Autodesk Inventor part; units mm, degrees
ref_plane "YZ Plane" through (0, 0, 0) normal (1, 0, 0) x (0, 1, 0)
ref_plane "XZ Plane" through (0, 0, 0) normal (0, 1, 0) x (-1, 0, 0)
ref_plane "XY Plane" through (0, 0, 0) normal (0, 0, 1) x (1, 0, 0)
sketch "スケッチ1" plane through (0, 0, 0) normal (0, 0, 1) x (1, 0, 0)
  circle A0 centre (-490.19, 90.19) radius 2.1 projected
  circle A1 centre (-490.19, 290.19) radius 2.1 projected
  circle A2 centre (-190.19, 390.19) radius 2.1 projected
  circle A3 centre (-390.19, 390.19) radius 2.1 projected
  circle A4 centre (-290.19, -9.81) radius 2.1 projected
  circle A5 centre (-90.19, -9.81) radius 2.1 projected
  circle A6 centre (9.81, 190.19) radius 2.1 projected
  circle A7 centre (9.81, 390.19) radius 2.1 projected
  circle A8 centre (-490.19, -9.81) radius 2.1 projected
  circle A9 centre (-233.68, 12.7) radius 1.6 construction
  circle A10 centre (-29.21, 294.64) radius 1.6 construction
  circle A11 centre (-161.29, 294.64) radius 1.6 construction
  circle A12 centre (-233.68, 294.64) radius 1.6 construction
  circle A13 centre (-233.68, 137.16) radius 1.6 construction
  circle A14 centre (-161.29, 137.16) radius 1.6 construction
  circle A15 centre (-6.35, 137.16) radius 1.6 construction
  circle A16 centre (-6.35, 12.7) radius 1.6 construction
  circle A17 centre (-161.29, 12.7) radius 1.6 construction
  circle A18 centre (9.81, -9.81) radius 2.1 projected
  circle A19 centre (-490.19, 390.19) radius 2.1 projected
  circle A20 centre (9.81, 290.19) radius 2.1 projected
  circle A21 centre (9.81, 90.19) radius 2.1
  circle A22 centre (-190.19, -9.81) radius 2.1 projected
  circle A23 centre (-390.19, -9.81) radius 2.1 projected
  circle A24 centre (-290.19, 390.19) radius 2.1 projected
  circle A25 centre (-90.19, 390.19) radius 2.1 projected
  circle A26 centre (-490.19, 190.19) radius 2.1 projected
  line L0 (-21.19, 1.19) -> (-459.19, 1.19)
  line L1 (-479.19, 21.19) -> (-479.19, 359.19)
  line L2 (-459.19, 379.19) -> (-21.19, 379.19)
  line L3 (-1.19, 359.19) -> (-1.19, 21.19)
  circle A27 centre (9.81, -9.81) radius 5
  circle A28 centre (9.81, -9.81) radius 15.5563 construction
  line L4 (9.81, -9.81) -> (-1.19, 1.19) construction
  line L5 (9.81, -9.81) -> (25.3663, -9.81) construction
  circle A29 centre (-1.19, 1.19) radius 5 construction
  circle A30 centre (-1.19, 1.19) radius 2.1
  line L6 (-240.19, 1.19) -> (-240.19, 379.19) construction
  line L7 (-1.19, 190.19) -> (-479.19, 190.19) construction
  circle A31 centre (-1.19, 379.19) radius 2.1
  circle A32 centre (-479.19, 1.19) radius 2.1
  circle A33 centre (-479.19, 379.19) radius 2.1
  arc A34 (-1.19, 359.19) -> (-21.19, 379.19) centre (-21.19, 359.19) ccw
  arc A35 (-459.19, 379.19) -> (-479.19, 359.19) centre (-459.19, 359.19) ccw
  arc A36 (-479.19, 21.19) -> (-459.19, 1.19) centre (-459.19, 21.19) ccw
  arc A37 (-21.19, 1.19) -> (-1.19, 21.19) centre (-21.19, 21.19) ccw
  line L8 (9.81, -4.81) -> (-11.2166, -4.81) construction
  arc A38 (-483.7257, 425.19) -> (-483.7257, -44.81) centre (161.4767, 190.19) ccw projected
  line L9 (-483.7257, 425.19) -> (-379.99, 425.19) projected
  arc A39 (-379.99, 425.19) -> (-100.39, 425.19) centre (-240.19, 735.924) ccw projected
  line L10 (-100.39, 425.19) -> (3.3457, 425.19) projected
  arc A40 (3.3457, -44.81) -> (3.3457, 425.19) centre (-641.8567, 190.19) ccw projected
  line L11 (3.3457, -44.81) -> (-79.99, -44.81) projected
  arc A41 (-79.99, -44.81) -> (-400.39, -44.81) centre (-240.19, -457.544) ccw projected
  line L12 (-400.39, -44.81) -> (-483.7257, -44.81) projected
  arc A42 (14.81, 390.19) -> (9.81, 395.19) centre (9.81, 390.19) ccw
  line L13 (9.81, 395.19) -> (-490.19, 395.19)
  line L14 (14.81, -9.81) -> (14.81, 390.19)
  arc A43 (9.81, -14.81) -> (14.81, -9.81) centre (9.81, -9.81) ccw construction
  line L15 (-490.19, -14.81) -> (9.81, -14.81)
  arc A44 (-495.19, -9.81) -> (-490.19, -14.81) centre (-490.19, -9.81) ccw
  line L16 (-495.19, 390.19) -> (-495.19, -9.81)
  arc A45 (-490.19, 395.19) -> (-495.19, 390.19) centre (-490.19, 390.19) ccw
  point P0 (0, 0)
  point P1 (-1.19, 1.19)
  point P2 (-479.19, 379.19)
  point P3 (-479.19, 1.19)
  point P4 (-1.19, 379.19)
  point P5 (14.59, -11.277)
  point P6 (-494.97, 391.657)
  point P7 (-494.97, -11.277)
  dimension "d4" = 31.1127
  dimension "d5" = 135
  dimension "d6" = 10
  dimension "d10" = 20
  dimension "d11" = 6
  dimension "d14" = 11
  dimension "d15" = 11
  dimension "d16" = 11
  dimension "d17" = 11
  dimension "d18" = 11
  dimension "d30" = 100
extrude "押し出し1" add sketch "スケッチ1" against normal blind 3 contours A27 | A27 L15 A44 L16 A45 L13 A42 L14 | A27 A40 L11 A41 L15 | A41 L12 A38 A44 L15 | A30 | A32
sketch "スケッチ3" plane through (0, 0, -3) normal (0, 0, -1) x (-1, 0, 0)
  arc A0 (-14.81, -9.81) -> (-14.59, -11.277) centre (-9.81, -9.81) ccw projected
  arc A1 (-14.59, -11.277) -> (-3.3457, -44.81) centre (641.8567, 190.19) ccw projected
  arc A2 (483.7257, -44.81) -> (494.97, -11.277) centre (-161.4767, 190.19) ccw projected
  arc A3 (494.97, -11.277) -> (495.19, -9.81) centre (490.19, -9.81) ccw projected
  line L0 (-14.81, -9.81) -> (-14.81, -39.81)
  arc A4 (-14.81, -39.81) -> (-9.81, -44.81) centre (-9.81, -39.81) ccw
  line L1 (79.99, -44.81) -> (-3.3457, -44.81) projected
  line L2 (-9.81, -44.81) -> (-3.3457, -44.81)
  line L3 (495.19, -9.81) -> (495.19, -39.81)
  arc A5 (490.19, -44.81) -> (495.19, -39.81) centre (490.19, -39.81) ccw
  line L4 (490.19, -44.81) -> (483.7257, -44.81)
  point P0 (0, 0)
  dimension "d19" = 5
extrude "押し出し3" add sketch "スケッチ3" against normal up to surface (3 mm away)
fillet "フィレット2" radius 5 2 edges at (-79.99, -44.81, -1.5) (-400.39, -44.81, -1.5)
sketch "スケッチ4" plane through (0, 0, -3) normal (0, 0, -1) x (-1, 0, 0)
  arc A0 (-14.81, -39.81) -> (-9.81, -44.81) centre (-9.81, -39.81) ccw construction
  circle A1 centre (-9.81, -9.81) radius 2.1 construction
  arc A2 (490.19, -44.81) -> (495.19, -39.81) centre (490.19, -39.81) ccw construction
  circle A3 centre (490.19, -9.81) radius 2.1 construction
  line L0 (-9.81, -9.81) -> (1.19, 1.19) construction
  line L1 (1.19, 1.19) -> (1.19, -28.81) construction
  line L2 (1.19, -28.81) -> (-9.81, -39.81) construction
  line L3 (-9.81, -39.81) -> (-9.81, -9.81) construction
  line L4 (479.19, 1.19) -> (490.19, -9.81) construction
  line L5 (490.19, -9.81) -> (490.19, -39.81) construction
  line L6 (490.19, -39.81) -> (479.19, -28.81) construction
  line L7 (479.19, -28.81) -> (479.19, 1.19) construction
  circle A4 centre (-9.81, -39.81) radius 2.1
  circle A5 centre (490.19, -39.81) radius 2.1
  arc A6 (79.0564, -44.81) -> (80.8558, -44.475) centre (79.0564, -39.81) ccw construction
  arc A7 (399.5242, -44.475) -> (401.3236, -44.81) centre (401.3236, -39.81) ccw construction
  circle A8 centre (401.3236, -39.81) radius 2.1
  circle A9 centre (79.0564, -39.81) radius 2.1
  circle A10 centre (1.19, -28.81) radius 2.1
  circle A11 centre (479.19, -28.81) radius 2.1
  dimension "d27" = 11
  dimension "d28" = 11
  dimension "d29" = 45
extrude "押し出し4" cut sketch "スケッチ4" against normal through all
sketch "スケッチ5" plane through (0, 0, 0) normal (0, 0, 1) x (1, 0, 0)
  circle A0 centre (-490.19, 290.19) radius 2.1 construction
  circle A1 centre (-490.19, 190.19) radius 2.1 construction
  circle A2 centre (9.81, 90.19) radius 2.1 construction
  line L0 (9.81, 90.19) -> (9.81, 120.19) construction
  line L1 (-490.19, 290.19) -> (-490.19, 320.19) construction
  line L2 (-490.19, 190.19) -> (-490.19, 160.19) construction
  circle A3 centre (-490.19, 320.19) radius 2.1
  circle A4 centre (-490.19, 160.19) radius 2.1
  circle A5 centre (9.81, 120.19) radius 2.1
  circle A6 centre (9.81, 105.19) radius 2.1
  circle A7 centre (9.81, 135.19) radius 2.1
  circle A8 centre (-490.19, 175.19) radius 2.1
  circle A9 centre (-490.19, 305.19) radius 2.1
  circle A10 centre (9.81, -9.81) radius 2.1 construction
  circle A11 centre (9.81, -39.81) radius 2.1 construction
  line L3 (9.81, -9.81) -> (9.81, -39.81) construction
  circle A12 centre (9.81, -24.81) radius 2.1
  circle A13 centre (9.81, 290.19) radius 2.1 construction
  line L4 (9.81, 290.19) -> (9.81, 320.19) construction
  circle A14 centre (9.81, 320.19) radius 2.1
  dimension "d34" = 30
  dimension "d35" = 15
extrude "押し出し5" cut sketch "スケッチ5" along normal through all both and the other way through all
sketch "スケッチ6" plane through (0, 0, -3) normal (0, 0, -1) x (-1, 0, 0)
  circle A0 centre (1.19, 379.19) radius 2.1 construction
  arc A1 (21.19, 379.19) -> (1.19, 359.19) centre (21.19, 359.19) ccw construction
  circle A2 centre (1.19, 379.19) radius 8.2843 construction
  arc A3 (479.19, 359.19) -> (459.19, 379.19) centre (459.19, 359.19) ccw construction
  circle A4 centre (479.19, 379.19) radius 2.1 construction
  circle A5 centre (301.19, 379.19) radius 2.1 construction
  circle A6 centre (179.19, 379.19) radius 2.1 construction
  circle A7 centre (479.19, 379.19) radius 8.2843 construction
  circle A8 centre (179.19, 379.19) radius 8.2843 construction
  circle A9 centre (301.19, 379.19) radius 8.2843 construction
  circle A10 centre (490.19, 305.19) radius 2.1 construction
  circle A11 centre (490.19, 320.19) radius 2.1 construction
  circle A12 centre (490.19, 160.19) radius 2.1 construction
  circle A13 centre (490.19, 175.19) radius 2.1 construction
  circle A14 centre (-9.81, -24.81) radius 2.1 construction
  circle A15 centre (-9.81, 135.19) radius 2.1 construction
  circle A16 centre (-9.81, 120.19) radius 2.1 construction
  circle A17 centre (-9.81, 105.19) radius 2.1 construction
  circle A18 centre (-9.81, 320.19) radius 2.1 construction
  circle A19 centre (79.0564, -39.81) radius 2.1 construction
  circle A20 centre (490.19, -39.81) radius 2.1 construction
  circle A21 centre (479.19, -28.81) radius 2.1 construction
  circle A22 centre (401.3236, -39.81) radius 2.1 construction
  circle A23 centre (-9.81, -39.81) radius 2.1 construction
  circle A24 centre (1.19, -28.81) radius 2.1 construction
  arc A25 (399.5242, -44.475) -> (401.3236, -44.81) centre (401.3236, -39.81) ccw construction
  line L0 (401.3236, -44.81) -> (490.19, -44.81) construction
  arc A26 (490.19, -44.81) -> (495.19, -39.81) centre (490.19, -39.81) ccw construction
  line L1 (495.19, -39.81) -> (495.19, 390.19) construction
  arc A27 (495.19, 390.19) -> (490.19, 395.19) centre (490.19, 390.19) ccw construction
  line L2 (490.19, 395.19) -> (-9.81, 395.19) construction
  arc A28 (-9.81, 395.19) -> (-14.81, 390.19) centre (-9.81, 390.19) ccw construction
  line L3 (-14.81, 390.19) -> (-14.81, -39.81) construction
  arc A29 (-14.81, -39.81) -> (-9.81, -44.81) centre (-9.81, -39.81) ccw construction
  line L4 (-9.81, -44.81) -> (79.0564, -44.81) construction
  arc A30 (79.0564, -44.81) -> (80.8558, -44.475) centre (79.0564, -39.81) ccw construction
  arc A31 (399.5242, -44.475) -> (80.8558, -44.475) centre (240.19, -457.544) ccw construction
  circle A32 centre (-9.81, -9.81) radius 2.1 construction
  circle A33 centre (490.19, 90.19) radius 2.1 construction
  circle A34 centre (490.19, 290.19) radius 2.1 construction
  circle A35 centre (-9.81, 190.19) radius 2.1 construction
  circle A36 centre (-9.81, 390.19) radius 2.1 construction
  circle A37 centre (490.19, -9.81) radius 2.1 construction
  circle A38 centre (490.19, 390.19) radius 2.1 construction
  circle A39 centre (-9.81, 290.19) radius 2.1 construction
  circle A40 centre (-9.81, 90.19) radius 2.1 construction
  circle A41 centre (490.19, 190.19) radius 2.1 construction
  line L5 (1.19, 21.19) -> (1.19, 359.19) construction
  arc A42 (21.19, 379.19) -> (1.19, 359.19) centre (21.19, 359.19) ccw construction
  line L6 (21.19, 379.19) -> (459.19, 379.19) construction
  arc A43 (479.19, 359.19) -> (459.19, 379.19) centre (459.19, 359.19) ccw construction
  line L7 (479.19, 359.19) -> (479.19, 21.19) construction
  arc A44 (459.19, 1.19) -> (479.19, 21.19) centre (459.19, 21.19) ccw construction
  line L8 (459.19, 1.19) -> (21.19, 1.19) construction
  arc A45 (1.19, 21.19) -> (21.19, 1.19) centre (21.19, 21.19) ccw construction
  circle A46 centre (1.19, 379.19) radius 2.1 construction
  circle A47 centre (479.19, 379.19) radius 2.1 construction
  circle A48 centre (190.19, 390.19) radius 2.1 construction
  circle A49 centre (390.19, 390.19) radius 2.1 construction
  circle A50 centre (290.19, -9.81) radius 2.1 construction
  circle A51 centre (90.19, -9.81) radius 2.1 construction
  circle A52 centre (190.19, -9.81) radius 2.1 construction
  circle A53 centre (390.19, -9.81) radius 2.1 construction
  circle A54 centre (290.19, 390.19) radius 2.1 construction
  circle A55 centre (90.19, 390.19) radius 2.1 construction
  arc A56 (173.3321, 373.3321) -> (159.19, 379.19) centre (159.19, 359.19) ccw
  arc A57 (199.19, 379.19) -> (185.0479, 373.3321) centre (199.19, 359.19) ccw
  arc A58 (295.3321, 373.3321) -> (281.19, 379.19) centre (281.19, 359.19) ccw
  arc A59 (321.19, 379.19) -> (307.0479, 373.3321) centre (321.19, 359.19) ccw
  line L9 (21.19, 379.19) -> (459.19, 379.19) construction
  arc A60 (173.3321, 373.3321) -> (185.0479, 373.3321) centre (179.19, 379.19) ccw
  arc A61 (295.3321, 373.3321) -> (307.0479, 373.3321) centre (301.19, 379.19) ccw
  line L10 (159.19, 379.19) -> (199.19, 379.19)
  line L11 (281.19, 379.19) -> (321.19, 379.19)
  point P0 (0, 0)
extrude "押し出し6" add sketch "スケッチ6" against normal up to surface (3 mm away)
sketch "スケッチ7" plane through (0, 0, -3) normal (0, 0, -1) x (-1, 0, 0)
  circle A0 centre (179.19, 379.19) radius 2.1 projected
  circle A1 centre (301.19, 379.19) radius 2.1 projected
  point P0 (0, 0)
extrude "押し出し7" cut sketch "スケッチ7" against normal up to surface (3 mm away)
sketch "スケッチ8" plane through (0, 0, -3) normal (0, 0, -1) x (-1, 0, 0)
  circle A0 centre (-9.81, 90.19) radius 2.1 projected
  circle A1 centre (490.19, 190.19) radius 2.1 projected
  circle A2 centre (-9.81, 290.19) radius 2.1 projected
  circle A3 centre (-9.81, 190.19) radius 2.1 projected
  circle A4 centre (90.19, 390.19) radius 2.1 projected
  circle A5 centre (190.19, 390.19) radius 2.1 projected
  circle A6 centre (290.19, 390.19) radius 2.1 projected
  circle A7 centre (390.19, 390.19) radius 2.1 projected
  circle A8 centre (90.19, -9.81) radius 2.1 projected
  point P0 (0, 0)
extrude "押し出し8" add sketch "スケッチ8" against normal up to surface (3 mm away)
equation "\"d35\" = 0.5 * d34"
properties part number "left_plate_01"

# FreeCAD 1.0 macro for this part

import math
import FreeCAD as App
import Part
import Sketcher
from FreeCAD import Vector


def edges_at(feature, points):
    """Names of the edges that pass closest to the given points."""
    edges = feature.Shape.Edges
    near = lambda p: min(range(len(edges)), key=lambda i: edges[i].distToShape(Part.Vertex(*p))[0])
    return sorted({f"Edge{near(p) + 1}" for p in points})

doc = App.newDocument("Part")
body = doc.addObject("PartDesign::Body", "Body")

sketch1 = body.newObject("Sketcher::SketchObject", "Sketch")
sketch1.AttachmentSupport = (doc.getObject("XY_Plane"), [""])
sketch1.MapMode = "FlatFace"
sketch1.addGeometry([
    Part.ArcOfCircle(Part.Circle(Vector(9.8, -9.8, 0), Vector(0, 0, 1), 5), math.radians(-17.06), math.radians(0)),
    Part.LineSegment(Vector(14.8, -9.8, 0), Vector(14.8, 390.2, 0)),
    Part.ArcOfCircle(Part.Circle(Vector(9.8, 390.2, 0), Vector(0, 0, 1), 5), math.radians(0), math.radians(90)),
    Part.LineSegment(Vector(9.8, 395.2, 0), Vector(-490.2, 395.2, 0)),
    Part.ArcOfCircle(Part.Circle(Vector(-490.2, 390.2, 0), Vector(0, 0, 1), 5), math.radians(90), math.radians(180)),
    Part.LineSegment(Vector(-495.2, 390.2, 0), Vector(-495.2, -9.8, 0)),
    Part.ArcOfCircle(Part.Circle(Vector(-490.2, -9.8, 0), Vector(0, 0, 1), 5), math.radians(180), math.radians(197.06)),
    Part.ArcOfCircle(Part.Circle(Vector(161.5, 190.2, 0), Vector(0, 0, 1), 686.7), math.radians(-162.94), math.radians(-159.99)),
    Part.LineSegment(Vector(-483.7, -44.8, 0), Vector(-400.4, -44.8, 0)),
    Part.ArcOfCircle(Part.Circle(Vector(-240.2, -457.5, 0), Vector(0, 0, 1), 442.7), math.radians(69), math.radians(111)),
    Part.LineSegment(Vector(-80, -44.8, 0), Vector(3.3, -44.8, 0)),
    Part.ArcOfCircle(Part.Circle(Vector(-641.9, 190.2, 0), Vector(0, 0, 1), 686.7), math.radians(-20.01), math.radians(-17.06)),
    Part.Circle(Vector(9.8, -9.8, 0), Vector(0, 0, 1), 2.1),
    Part.Circle(Vector(9.8, 390.2, 0), Vector(0, 0, 1), 2.1),
    Part.Circle(Vector(-1.2, 379.2, 0), Vector(0, 0, 1), 2.1),
    Part.Circle(Vector(-490.2, -9.8, 0), Vector(0, 0, 1), 2.1),
    Part.Circle(Vector(-390.2, -9.8, 0), Vector(0, 0, 1), 2.1),
    Part.Circle(Vector(-290.2, -9.8, 0), Vector(0, 0, 1), 2.1),
    Part.Circle(Vector(-490.2, 90.2, 0), Vector(0, 0, 1), 2.1),
    Part.Circle(Vector(-490.2, 190.2, 0), Vector(0, 0, 1), 2.1),
    Part.Circle(Vector(-190.2, -9.8, 0), Vector(0, 0, 1), 2.1),
    Part.Circle(Vector(-90.2, -9.8, 0), Vector(0, 0, 1), 2.1),
    Part.ArcOfCircle(Part.Circle(Vector(-21.2, 21.2, 0), Vector(0, 0, 1), 20), math.radians(-90), math.radians(0)),
    Part.LineSegment(Vector(-21.2, 1.2, 0), Vector(-459.2, 1.2, 0)),
    Part.ArcOfCircle(Part.Circle(Vector(-459.2, 21.2, 0), Vector(0, 0, 1), 20), math.radians(180), math.radians(270)),
    Part.LineSegment(Vector(-479.2, 21.2, 0), Vector(-479.2, 359.2, 0)),
    Part.ArcOfCircle(Part.Circle(Vector(-459.2, 359.2, 0), Vector(0, 0, 1), 20), math.radians(90), math.radians(180)),
    Part.LineSegment(Vector(-459.2, 379.2, 0), Vector(-21.2, 379.2, 0)),
    Part.ArcOfCircle(Part.Circle(Vector(-21.2, 359.2, 0), Vector(0, 0, 1), 20), math.radians(0), math.radians(90)),
    Part.LineSegment(Vector(-1.2, 359.2, 0), Vector(-1.2, 21.2, 0)),
    Part.Circle(Vector(9.8, 90.2, 0), Vector(0, 0, 1), 2.1),
    Part.Circle(Vector(9.8, 190.2, 0), Vector(0, 0, 1), 2.1),
    Part.Circle(Vector(-490.2, 290.2, 0), Vector(0, 0, 1), 2.1),
    Part.Circle(Vector(-490.2, 390.2, 0), Vector(0, 0, 1), 2.1),
    Part.Circle(Vector(-479.2, 379.2, 0), Vector(0, 0, 1), 2.1),
    Part.Circle(Vector(-390.2, 390.2, 0), Vector(0, 0, 1), 2.1),
    Part.Circle(Vector(-290.2, 390.2, 0), Vector(0, 0, 1), 2.1),
    Part.Circle(Vector(9.8, 290.2, 0), Vector(0, 0, 1), 2.1),
    Part.Circle(Vector(-190.2, 390.2, 0), Vector(0, 0, 1), 2.1),
    Part.Circle(Vector(-90.2, 390.2, 0), Vector(0, 0, 1), 2.1),
], False)
sketch1.addConstraint([
    Sketcher.Constraint("Tangent", 0, 2, 1, 1),
    Sketcher.Constraint("Tangent", 1, 2, 2, 1),
    Sketcher.Constraint("Tangent", 2, 2, 3, 1),
    Sketcher.Constraint("Tangent", 3, 2, 4, 1),
    Sketcher.Constraint("Tangent", 4, 2, 5, 1),
    Sketcher.Constraint("Tangent", 5, 2, 6, 1),
    Sketcher.Constraint("Tangent", 6, 2, 7, 1),
    Sketcher.Constraint("Coincident", 7, 2, 8, 1),
    Sketcher.Constraint("Coincident", 8, 2, 9, 2),
    Sketcher.Constraint("Coincident", 9, 1, 10, 1),
    Sketcher.Constraint("Coincident", 10, 2, 11, 1),
    Sketcher.Constraint("Tangent", 11, 2, 0, 1),
    Sketcher.Constraint("Tangent", 22, 1, 23, 1),
    Sketcher.Constraint("Tangent", 23, 2, 24, 2),
    Sketcher.Constraint("Tangent", 24, 1, 25, 1),
    Sketcher.Constraint("Tangent", 25, 2, 26, 2),
    Sketcher.Constraint("Tangent", 26, 1, 27, 1),
    Sketcher.Constraint("Tangent", 27, 2, 28, 2),
    Sketcher.Constraint("Tangent", 28, 1, 29, 1),
    Sketcher.Constraint("Tangent", 29, 2, 22, 2),
    Sketcher.Constraint("Vertical", 1),
    Sketcher.Constraint("Horizontal", 3),
    Sketcher.Constraint("Vertical", 5),
    Sketcher.Constraint("Horizontal", 8),
    Sketcher.Constraint("Horizontal", 10),
    Sketcher.Constraint("Horizontal", 23),
    Sketcher.Constraint("Vertical", 25),
    Sketcher.Constraint("Horizontal", 27),
    Sketcher.Constraint("Vertical", 29),
    Sketcher.Constraint("Coincident", 12, 3, 0, 3),
    Sketcher.Constraint("Coincident", 13, 3, 2, 3),
    Sketcher.Constraint("Coincident", 15, 3, 6, 3),
    Sketcher.Constraint("Coincident", 33, 3, 4, 3),
    Sketcher.Constraint("Equal", 0, 2),
    Sketcher.Constraint("Equal", 2, 4),
    Sketcher.Constraint("Equal", 4, 6),
    Sketcher.Constraint("Equal", 7, 11),
    Sketcher.Constraint("Equal", 12, 13),
    Sketcher.Constraint("Equal", 13, 14),
    Sketcher.Constraint("Equal", 14, 15),
    Sketcher.Constraint("Equal", 15, 16),
    Sketcher.Constraint("Equal", 16, 17),
    Sketcher.Constraint("Equal", 17, 18),
    Sketcher.Constraint("Equal", 18, 19),
    Sketcher.Constraint("Equal", 19, 20),
    Sketcher.Constraint("Equal", 20, 21),
    Sketcher.Constraint("Equal", 22, 24),
    Sketcher.Constraint("Equal", 24, 26),
    Sketcher.Constraint("Equal", 26, 28),
    Sketcher.Constraint("Equal", 21, 30),
    Sketcher.Constraint("Equal", 30, 31),
    Sketcher.Constraint("Equal", 31, 32),
    Sketcher.Constraint("Equal", 32, 33),
    Sketcher.Constraint("Equal", 33, 34),
    Sketcher.Constraint("Equal", 34, 35),
    Sketcher.Constraint("Equal", 35, 36),
    Sketcher.Constraint("Equal", 36, 37),
    Sketcher.Constraint("Equal", 37, 38),
    Sketcher.Constraint("Equal", 38, 39),
    Sketcher.Constraint("Horizontal", 0, 3, 6, 3),
    Sketcher.Constraint("Horizontal", 7, 3, 11, 3),
    Sketcher.Constraint("Horizontal", 15, 3, 16, 3),
    Sketcher.Constraint("Horizontal", 16, 3, 17, 3),
    Sketcher.Constraint("Horizontal", 11, 3, 19, 3),
    Sketcher.Constraint("Horizontal", 17, 3, 20, 3),
    Sketcher.Constraint("Horizontal", 20, 3, 21, 3),
    Sketcher.Constraint("Horizontal", 18, 3, 30, 3),
    Sketcher.Constraint("Horizontal", 19, 3, 31, 3),
    Sketcher.Constraint("Horizontal", 14, 3, 34, 3),
    Sketcher.Constraint("Horizontal", 33, 3, 35, 3),
    Sketcher.Constraint("Horizontal", 35, 3, 36, 3),
    Sketcher.Constraint("Horizontal", 32, 3, 37, 3),
    Sketcher.Constraint("Horizontal", 36, 3, 38, 3),
    Sketcher.Constraint("Horizontal", 38, 3, 39, 3),
    Sketcher.Constraint("Horizontal", 8, 2, 9, 1),
    Sketcher.Constraint("Horizontal", 34, 3, 26, 1),
    Sketcher.Constraint("Vertical", 15, 3, 18, 3),
    Sketcher.Constraint("Vertical", 18, 3, 19, 3),
    Sketcher.Constraint("Vertical", 13, 3, 30, 3),
    Sketcher.Constraint("Vertical", 30, 3, 31, 3),
    Sketcher.Constraint("Vertical", 19, 3, 32, 3),
    Sketcher.Constraint("Vertical", 16, 3, 35, 3),
    Sketcher.Constraint("Vertical", 17, 3, 36, 3),
    Sketcher.Constraint("Vertical", 31, 3, 37, 3),
    Sketcher.Constraint("Vertical", 20, 3, 38, 3),
    Sketcher.Constraint("Vertical", 21, 3, 39, 3),
    Sketcher.Constraint("Vertical", 34, 3, 24, 1),
    Sketcher.Constraint("Vertical", 14, 3, 28, 1),
    Sketcher.Constraint("Equal", 8, 10),
    Sketcher.Constraint("Radius", 0, 5.0),
    Sketcher.Constraint("Radius", 22, 20.0),
    Sketcher.Constraint("DistanceX", 14, 3, 2, 3, 11.0),
    Sketcher.Constraint("DistanceY", 14, 3, 2, 3, 11.0),
    Sketcher.Constraint("DistanceX", 6, 3, 16, 3, 100.0),
    Sketcher.Constraint("DistanceX", 16, 3, 17, 3, 100.0),
    Sketcher.Constraint("DistanceY", 6, 3, 18, 3, 100.0),
    Sketcher.Constraint("DistanceY", 18, 3, 11, 3, 100.0),
    Sketcher.Constraint("DistanceX", 17, 3, 20, 3, 100.0),
    Sketcher.Constraint("DistanceX", 21, 3, 0, 3, 100.0),
    Sketcher.Constraint("DistanceX", 20, 3, 21, 3, 100.0),
    Sketcher.Constraint("DistanceY", 32, 3, 4, 3, 100.0),
    Sketcher.Constraint("DistanceY", 19, 3, 32, 3, 100.0),
    Sketcher.Constraint("DistanceX", 4, 3, 34, 3, 11.0),
    Sketcher.Constraint("DistanceY", 0, 3, 22, 1, 11.0),
    Sketcher.Constraint("Diameter", 12, 4.2),
    Sketcher.Constraint("Radius", 9, 442.734),
    Sketcher.Constraint("DistanceY", 8, 2, 16, 3, 35.0),
    Sketcher.Constraint("Radius", 7, 686.6667),
    Sketcher.Constraint("DistanceX", 8, 2, 16, 3, 10.2),
    Sketcher.Constraint("DistanceX", -1, 1, 0, 3, 9.81),
    Sketcher.Constraint("DistanceY", 0, 3, -1, 1, 9.81),
])
pad1 = body.newObject("PartDesign::Pad", "Pad")
pad1.Profile = sketch1
pad1.Length = 3
pad1.Reversed = True

sketch2 = body.newObject("Sketcher::SketchObject", "Sketch001")
sketch2.AttachmentSupport = (doc.getObject("XY_Plane"), [""])
sketch2.MapMode = "FlatFace"
sketch2.AttachmentOffset = App.Placement(Vector(0, 0, -3), App.Rotation())
sketch2.addGeometry([
    Part.ArcOfCircle(Part.Circle(Vector(9.807789, -9.809835, 0), Vector(0, 0, 1), 5.002211), math.radians(-17.055823), math.radians(-0.001889)),
    Part.LineSegment(Vector(14.81, -9.81, 0), Vector(14.81, -39.81, 0)),
    Part.ArcOfCircle(Part.Circle(Vector(9.81, -39.81, 0), Vector(0, 0, 1), 5), math.radians(-90), math.radians(0)),
    Part.LineSegment(Vector(9.81, -44.81, 0), Vector(3.3457, -44.81, 0)),
    Part.ArcOfCircle(Part.Circle(Vector(-641.7678, 190.161458, 0), Vector(0, 0, 1), 686.573385), math.radians(-20.01328), math.radians(-17.061429)),
    Part.ArcOfCircle(Part.Circle(Vector(161.56486, 190.22083, 0), Vector(0, 0, 1), 686.760073), math.radians(-162.938169), math.radians(-159.987121)),
    Part.LineSegment(Vector(-483.7257, -44.81, 0), Vector(-490.19, -44.81, 0)),
    Part.ArcOfCircle(Part.Circle(Vector(-490.19, -39.81, 0), Vector(0, 0, 1), 5), math.radians(180), math.radians(270)),
    Part.LineSegment(Vector(-495.19, -39.81, 0), Vector(-495.19, -9.81, 0)),
    Part.ArcOfCircle(Part.Circle(Vector(-490.19216, -9.810491, 0), Vector(0, 0, 1), 4.99784), math.radians(179.994376), math.radians(197.063336)),
], False)
sketch2.addConstraint([
    Sketcher.Constraint("Coincident", 0, 2, 1, 1),
    Sketcher.Constraint("Coincident", 1, 2, 2, 2),
    Sketcher.Constraint("Coincident", 2, 1, 3, 1),
    Sketcher.Constraint("Coincident", 3, 2, 4, 1),
    Sketcher.Constraint("Coincident", 4, 2, 0, 1),
    Sketcher.Constraint("Coincident", 5, 2, 6, 1),
    Sketcher.Constraint("Coincident", 6, 2, 7, 2),
    Sketcher.Constraint("Coincident", 7, 1, 8, 1),
    Sketcher.Constraint("Coincident", 8, 2, 9, 1),
    Sketcher.Constraint("Coincident", 9, 2, 5, 1),
    Sketcher.Constraint("Vertical", 1),
    Sketcher.Constraint("Horizontal", 3),
    Sketcher.Constraint("Horizontal", 6),
    Sketcher.Constraint("Vertical", 8),
    Sketcher.Constraint("Radius", 2, 5.0),
    Sketcher.Constraint("Radius", 7, 5.0),
    Sketcher.Constraint("DistanceX", 2, 1, 1, 2, 5.0),
    Sketcher.Constraint("DistanceY", 2, 1, 1, 2, 5.0),
    Sketcher.Constraint("DistanceX", 7, 1, 6, 2, 5.0),
    Sketcher.Constraint("DistanceY", 6, 2, 7, 1, 5.0),
    Sketcher.Constraint("DistanceY", 1, 2, 1, 1, 30.0),
    Sketcher.Constraint("DistanceY", 8, 1, 8, 2, 30.0),
    Sketcher.Constraint("Radius", 5, 686.76),
    Sketcher.Constraint("DistanceX", 7, 3, 2, 3, 500.0),
    Sketcher.Constraint("DistanceX", 9, 3, 0, 3, 500.0),
    Sketcher.Constraint("DistanceY", 7, 3, 0, 2, 30.0),
    Sketcher.Constraint("Radius", 0, 5.0022),
    Sketcher.Constraint("Radius", 4, 686.5734),
    Sketcher.Constraint("DistanceX", -1, 1, 2, 3, 9.81),
    Sketcher.Constraint("DistanceY", 2, 3, -1, 1, 39.81),
    Sketcher.Constraint("DistanceX", -1, 1, 4, 2, 14.59),
    Sketcher.Constraint("DistanceX", 9, 2, -1, 1, 494.97),
    Sketcher.Constraint("DistanceX", 3, 2, 3, 1, 6.4643),
    Sketcher.Constraint("DistanceX", 6, 2, 6, 1, 6.4643),
    Sketcher.Constraint("DistanceY", 9, 2, -1, 1, 11.277),
    Sketcher.Constraint("DistanceY", 9, 3, 4, 3, 199.972),
])
pad2 = body.newObject("PartDesign::Pad", "Pad001")
pad2.Profile = sketch2
pad2.Length = 3
doc.recompute()

fillet = body.newObject("PartDesign::Fillet", "Fillet")
fillet.Base = (pad2, edges_at(pad2, [(-79.99, -44.81, -1.5), (-400.39, -44.81, -1.5)]))
fillet.Radius = 5

sketch3 = body.newObject("Sketcher::SketchObject", "Sketch002")
sketch3.AttachmentSupport = (doc.getObject("XY_Plane"), [""])
sketch3.MapMode = "FlatFace"
sketch3.AttachmentOffset = App.Placement(Vector(0, 0, -3), App.Rotation())
sketch3.addGeometry([
    Part.Circle(Vector(9.8, -39.8, 0), Vector(0, 0, 1), 2.1),
    Part.Circle(Vector(-490.2, -39.8, 0), Vector(0, 0, 1), 2.1),
    Part.Circle(Vector(-401.3, -39.8, 0), Vector(0, 0, 1), 2.1),
    Part.Circle(Vector(-79.1, -39.8, 0), Vector(0, 0, 1), 2.1),
    Part.Circle(Vector(-1.2, -28.8, 0), Vector(0, 0, 1), 2.1),
    Part.Circle(Vector(-479.2, -28.8, 0), Vector(0, 0, 1), 2.1),
], False)
sketch3.addConstraint([
    Sketcher.Constraint("Equal", 0, 1),
    Sketcher.Constraint("Equal", 1, 2),
    Sketcher.Constraint("Equal", 2, 3),
    Sketcher.Constraint("Equal", 3, 4),
    Sketcher.Constraint("Equal", 4, 5),
    Sketcher.Constraint("Horizontal", 0, 3, 1, 3),
    Sketcher.Constraint("Horizontal", 1, 3, 2, 3),
    Sketcher.Constraint("Horizontal", 2, 3, 3, 3),
    Sketcher.Constraint("Horizontal", 4, 3, 5, 3),
    Sketcher.Constraint("DistanceX", 4, 3, 0, 3, 11.0),
    Sketcher.Constraint("DistanceY", 0, 3, 4, 3, 11.0),
    Sketcher.Constraint("DistanceX", 1, 3, 5, 3, 11.0),
    Sketcher.Constraint("Diameter", 0, 4.2),
    Sketcher.Constraint("DistanceX", 1, 3, 0, 3, 500.0),
    Sketcher.Constraint("DistanceX", -1, 1, 0, 3, 9.81),
    Sketcher.Constraint("DistanceY", 0, 3, -1, 1, 39.81),
    Sketcher.Constraint("DistanceX", 2, 3, -1, 1, 401.3236),
    Sketcher.Constraint("DistanceX", 3, 3, -1, 1, 79.0564),
])
pocket1 = body.newObject("PartDesign::Pocket", "Pocket")
pocket1.Profile = sketch3
pocket1.Type = "ThroughAll"
pocket1.Reversed = True

sketch4 = body.newObject("Sketcher::SketchObject", "Sketch003")
sketch4.AttachmentSupport = (doc.getObject("XY_Plane"), [""])
sketch4.MapMode = "FlatFace"
sketch4.addGeometry([
    Part.Circle(Vector(-490.2, 320.2, 0), Vector(0, 0, 1), 2.1),
    Part.Circle(Vector(-490.2, 160.2, 0), Vector(0, 0, 1), 2.1),
    Part.Circle(Vector(9.8, 120.2, 0), Vector(0, 0, 1), 2.1),
    Part.Circle(Vector(9.8, 105.2, 0), Vector(0, 0, 1), 2.1),
    Part.Circle(Vector(9.8, 135.2, 0), Vector(0, 0, 1), 2.1),
    Part.Circle(Vector(-490.2, 175.2, 0), Vector(0, 0, 1), 2.1),
    Part.Circle(Vector(-490.2, 305.2, 0), Vector(0, 0, 1), 2.1),
    Part.Circle(Vector(9.8, -24.8, 0), Vector(0, 0, 1), 2.1),
    Part.Circle(Vector(9.8, 320.2, 0), Vector(0, 0, 1), 2.1),
], False)
sketch4.addConstraint([
    Sketcher.Constraint("Equal", 0, 1),
    Sketcher.Constraint("Equal", 1, 2),
    Sketcher.Constraint("Equal", 2, 3),
    Sketcher.Constraint("Equal", 3, 4),
    Sketcher.Constraint("Equal", 4, 5),
    Sketcher.Constraint("Equal", 5, 6),
    Sketcher.Constraint("Equal", 6, 7),
    Sketcher.Constraint("Equal", 7, 8),
    Sketcher.Constraint("Horizontal", 0, 3, 8, 3),
    Sketcher.Constraint("Vertical", 0, 3, 1, 3),
    Sketcher.Constraint("Vertical", 2, 3, 3, 3),
    Sketcher.Constraint("Vertical", 3, 3, 4, 3),
    Sketcher.Constraint("Vertical", 1, 3, 5, 3),
    Sketcher.Constraint("Vertical", 5, 3, 6, 3),
    Sketcher.Constraint("Vertical", 4, 3, 7, 3),
    Sketcher.Constraint("Vertical", 7, 3, 8, 3),
    Sketcher.Constraint("DistanceY", 3, 3, 2, 3, 15.0),
    Sketcher.Constraint("DistanceY", 2, 3, 4, 3, 15.0),
    Sketcher.Constraint("DistanceY", 1, 3, 5, 3, 15.0),
    Sketcher.Constraint("DistanceY", 6, 3, 0, 3, 15.0),
    Sketcher.Constraint("Diameter", 0, 4.2),
    Sketcher.Constraint("DistanceY", 1, 3, 0, 3, 160.0),
    Sketcher.Constraint("DistanceX", 1, 3, 2, 3, 500.0),
    Sketcher.Constraint("DistanceY", 2, 3, 1, 3, 40.0),
    Sketcher.Constraint("DistanceY", 7, 3, 3, 3, 130.0),
    Sketcher.Constraint("DistanceX", 0, 3, -1, 1, 490.19),
    Sketcher.Constraint("DistanceY", -1, 1, 0, 3, 320.19),
])
pocket2 = body.newObject("PartDesign::Pocket", "Pocket001")
pocket2.Profile = sketch4
pocket2.Type = "ThroughAll"
pocket2.Midplane = True

sketch5 = body.newObject("Sketcher::SketchObject", "Sketch004")
sketch5.AttachmentSupport = (doc.getObject("XY_Plane"), [""])
sketch5.MapMode = "FlatFace"
sketch5.AttachmentOffset = App.Placement(Vector(0, 0, -3), App.Rotation())
sketch5.addGeometry([
    Part.ArcOfCircle(Part.Circle(Vector(-159, 359, 0), Vector(0, 0, 1), 20), math.radians(90), math.radians(135)),
    Part.ArcOfCircle(Part.Circle(Vector(-179, 379, 0), Vector(0, 0, 1), 8), math.radians(-135), math.radians(-45)),
    Part.ArcOfCircle(Part.Circle(Vector(-199, 359, 0), Vector(0, 0, 1), 20), math.radians(45), math.radians(90)),
    Part.LineSegment(Vector(-199, 379, 0), Vector(-159, 379, 0)),
    Part.ArcOfCircle(Part.Circle(Vector(-281, 359, 0), Vector(0, 0, 1), 20), math.radians(90), math.radians(135)),
    Part.ArcOfCircle(Part.Circle(Vector(-301, 379, 0), Vector(0, 0, 1), 8), math.radians(-135), math.radians(-45)),
    Part.ArcOfCircle(Part.Circle(Vector(-321, 359, 0), Vector(0, 0, 1), 20), math.radians(45), math.radians(90)),
    Part.LineSegment(Vector(-321, 379, 0), Vector(-281, 379, 0)),
], False)
sketch5.addConstraint([
    Sketcher.Constraint("Tangent", 0, 2, 1, 2),
    Sketcher.Constraint("Tangent", 1, 1, 2, 1),
    Sketcher.Constraint("Tangent", 2, 2, 3, 1),
    Sketcher.Constraint("Tangent", 3, 2, 0, 1),
    Sketcher.Constraint("Tangent", 4, 2, 5, 2),
    Sketcher.Constraint("Tangent", 5, 1, 6, 1),
    Sketcher.Constraint("Tangent", 6, 2, 7, 1),
    Sketcher.Constraint("Tangent", 7, 2, 4, 1),
    Sketcher.Constraint("Horizontal", 3),
    Sketcher.Constraint("Horizontal", 7),
    Sketcher.Constraint("Equal", 0, 2),
    Sketcher.Constraint("Equal", 2, 4),
    Sketcher.Constraint("Equal", 1, 5),
    Sketcher.Constraint("Equal", 4, 6),
    Sketcher.Constraint("Horizontal", 2, 3, 4, 3),
    Sketcher.Constraint("Horizontal", 1, 3, 5, 3),
    Sketcher.Constraint("Horizontal", 5, 3, 2, 2),
    Sketcher.Constraint("Radius", 0, 20.0),
    Sketcher.Constraint("DistanceX", 3, 1, 3, 2, 40.0),
    Sketcher.Constraint("DistanceX", 4, 3, 2, 3, 82.0),
    Sketcher.Constraint("DistanceX", 0, 3, -1, 1, 159.19),
    Sketcher.Constraint("DistanceY", -1, 1, 0, 3, 359.19),
])
pad3 = body.newObject("PartDesign::Pad", "Pad002")
pad3.Profile = sketch5
pad3.Length = 3

sketch6 = body.newObject("Sketcher::SketchObject", "Sketch005")
sketch6.AttachmentSupport = (doc.getObject("XY_Plane"), [""])
sketch6.MapMode = "FlatFace"
sketch6.AttachmentOffset = App.Placement(Vector(0, 0, -3), App.Rotation())
sketch6.addGeometry([
    Part.Circle(Vector(-179.2, 379.2, 0), Vector(0, 0, 1), 2.1),
    Part.Circle(Vector(-301.2, 379.2, 0), Vector(0, 0, 1), 2.1),
], False)
sketch6.addConstraint([
    Sketcher.Constraint("Equal", 0, 1),
    Sketcher.Constraint("Horizontal", 0, 3, 1, 3),
    Sketcher.Constraint("Diameter", 0, 4.2),
    Sketcher.Constraint("DistanceX", 1, 3, 0, 3, 122.0),
    Sketcher.Constraint("DistanceX", 0, 3, -1, 1, 179.19),
    Sketcher.Constraint("DistanceY", -1, 1, 0, 3, 379.19),
])
pocket3 = body.newObject("PartDesign::Pocket", "Pocket002")
pocket3.Profile = sketch6
pocket3.Length = 3
pocket3.Reversed = True

sketch7 = body.newObject("Sketcher::SketchObject", "Sketch006")
sketch7.AttachmentSupport = (doc.getObject("XY_Plane"), [""])
sketch7.MapMode = "FlatFace"
sketch7.AttachmentOffset = App.Placement(Vector(0, 0, -3), App.Rotation())
sketch7.addGeometry([
    Part.Circle(Vector(9.8, 90.2, 0), Vector(0, 0, 1), 2.1),
    Part.Circle(Vector(-490.2, 190.2, 0), Vector(0, 0, 1), 2.1),
    Part.Circle(Vector(9.8, 290.2, 0), Vector(0, 0, 1), 2.1),
    Part.Circle(Vector(9.8, 190.2, 0), Vector(0, 0, 1), 2.1),
    Part.Circle(Vector(-90.2, 390.2, 0), Vector(0, 0, 1), 2.1),
    Part.Circle(Vector(-190.2, 390.2, 0), Vector(0, 0, 1), 2.1),
    Part.Circle(Vector(-290.2, 390.2, 0), Vector(0, 0, 1), 2.1),
    Part.Circle(Vector(-390.2, 390.2, 0), Vector(0, 0, 1), 2.1),
    Part.Circle(Vector(-90.2, -9.8, 0), Vector(0, 0, 1), 2.1),
], False)
sketch7.addConstraint([
    Sketcher.Constraint("Equal", 0, 1),
    Sketcher.Constraint("Equal", 1, 2),
    Sketcher.Constraint("Equal", 2, 3),
    Sketcher.Constraint("Equal", 3, 4),
    Sketcher.Constraint("Equal", 4, 5),
    Sketcher.Constraint("Equal", 5, 6),
    Sketcher.Constraint("Equal", 6, 7),
    Sketcher.Constraint("Equal", 7, 8),
    Sketcher.Constraint("Horizontal", 1, 3, 3, 3),
    Sketcher.Constraint("Horizontal", 4, 3, 5, 3),
    Sketcher.Constraint("Horizontal", 5, 3, 6, 3),
    Sketcher.Constraint("Horizontal", 6, 3, 7, 3),
    Sketcher.Constraint("Vertical", 0, 3, 2, 3),
    Sketcher.Constraint("Vertical", 2, 3, 3, 3),
    Sketcher.Constraint("Vertical", 4, 3, 8, 3),
    Sketcher.Constraint("Diameter", 0, 4.2),
    Sketcher.Constraint("DistanceX", 1, 3, 0, 3, 500.0),
    Sketcher.Constraint("DistanceY", 0, 3, 1, 3, 100.0),
    Sketcher.Constraint("DistanceY", 0, 3, 2, 3, 200.0),
    Sketcher.Constraint("DistanceX", 4, 3, 2, 3, 100.0),
    Sketcher.Constraint("DistanceY", 2, 3, 4, 3, 100.0),
    Sketcher.Constraint("DistanceX", 5, 3, 4, 3, 100.0),
    Sketcher.Constraint("DistanceX", 6, 3, 5, 3, 100.0),
    Sketcher.Constraint("DistanceX", 7, 3, 6, 3, 100.0),
    Sketcher.Constraint("DistanceY", 8, 3, 0, 3, 100.0),
    Sketcher.Constraint("DistanceX", -1, 1, 0, 3, 9.81),
    Sketcher.Constraint("DistanceY", -1, 1, 0, 3, 90.19),
])
pad4 = body.newObject("PartDesign::Pad", "Pad003")
pad4.Profile = sketch7
pad4.Length = 3

doc.recompute()
